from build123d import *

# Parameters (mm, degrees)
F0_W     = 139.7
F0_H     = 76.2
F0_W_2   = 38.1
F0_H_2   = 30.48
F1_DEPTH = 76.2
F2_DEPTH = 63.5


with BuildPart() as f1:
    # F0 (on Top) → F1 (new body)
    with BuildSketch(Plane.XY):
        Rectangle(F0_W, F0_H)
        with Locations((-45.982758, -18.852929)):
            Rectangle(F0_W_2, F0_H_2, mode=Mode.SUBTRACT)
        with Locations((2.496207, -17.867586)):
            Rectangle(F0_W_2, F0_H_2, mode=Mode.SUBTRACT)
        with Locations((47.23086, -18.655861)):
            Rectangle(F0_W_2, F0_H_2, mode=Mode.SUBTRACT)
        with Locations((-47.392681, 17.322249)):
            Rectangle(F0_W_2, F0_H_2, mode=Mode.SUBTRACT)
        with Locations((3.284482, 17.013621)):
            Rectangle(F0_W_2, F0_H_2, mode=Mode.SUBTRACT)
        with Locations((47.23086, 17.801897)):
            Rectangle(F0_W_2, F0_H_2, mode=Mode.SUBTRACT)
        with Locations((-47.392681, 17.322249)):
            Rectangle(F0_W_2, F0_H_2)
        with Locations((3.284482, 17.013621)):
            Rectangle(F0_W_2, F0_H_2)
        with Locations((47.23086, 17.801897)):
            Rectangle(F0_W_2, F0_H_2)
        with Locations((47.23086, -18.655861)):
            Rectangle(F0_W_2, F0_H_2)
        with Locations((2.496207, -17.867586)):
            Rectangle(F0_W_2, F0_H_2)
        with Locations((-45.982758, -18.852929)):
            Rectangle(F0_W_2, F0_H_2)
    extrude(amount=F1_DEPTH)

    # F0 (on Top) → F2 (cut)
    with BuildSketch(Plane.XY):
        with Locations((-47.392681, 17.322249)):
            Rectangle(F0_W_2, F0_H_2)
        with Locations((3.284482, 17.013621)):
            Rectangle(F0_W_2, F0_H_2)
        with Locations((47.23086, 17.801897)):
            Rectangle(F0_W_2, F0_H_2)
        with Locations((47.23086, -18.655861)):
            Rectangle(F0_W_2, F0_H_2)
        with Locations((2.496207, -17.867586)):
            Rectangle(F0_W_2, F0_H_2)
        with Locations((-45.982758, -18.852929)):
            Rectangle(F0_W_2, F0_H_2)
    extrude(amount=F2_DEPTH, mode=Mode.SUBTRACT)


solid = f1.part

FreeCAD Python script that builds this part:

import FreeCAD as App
import Part
import Sketcher
Q = App.Units.Quantity


def add_polygon(sketch, points):
    """Adds a closed chain of lines whose ends are joined by coincident constraints."""
    first, n = sketch.GeometryCount, len(points)
    for a, b in zip(points, points[1:] + points[:1]):
        sketch.addGeometry(Part.LineSegment(App.Vector(*a, 0), App.Vector(*b, 0)), False)
    for i in range(n):
        sketch.addConstraint(Sketcher.Constraint("Coincident", first + i, 2, first + (i + 1) % n, 1))

doc = App.newDocument("Part")
body = doc.addObject("PartDesign::Body", "Body")

# Sketch on XY plane
sketch1 = body.newObject("Sketcher::SketchObject", "Sketch")
sketch1.AttachmentSupport = (doc.getObject("XY_Plane"), [""])
sketch1.MapMode = "FlatFace"
add_polygon(sketch1, [(-69.85, 38.1), (-69.85, -38.1), (69.85, -38.1), (69.85, 38.1)])  # lines 0-3
sketch1.addConstraint(Sketcher.Constraint("Vertical", 0))
sketch1.addConstraint(Sketcher.Constraint("Horizontal", 1))
sketch1.addConstraint(Sketcher.Constraint("Vertical", 2))
sketch1.addConstraint(Sketcher.Constraint("Horizontal", 3))
sketch1.addConstraint(Sketcher.Constraint("Symmetric", 0, 2, 2, 2, -1, 1))
sketch1.addConstraint(Sketcher.Constraint("DistanceY", 0, 2, 0, 1, Q("3 in")))
sketch1.addConstraint(Sketcher.Constraint("DistanceX", 1, 1, 1, 2, Q("5.5 in")))
pad1 = body.newObject("PartDesign::Pad", "Pad")
pad1.Profile = sketch1
pad1.Length = Q("3 in")

# Sketch on XY plane
sketch2 = body.newObject("Sketcher::SketchObject", "Sketch001")
sketch2.AttachmentSupport = (doc.getObject("XY_Plane"), [""])
sketch2.MapMode = "FlatFace"
add_polygon(sketch2, [(-66.442681, 32.562249), (-66.442681, 2.082249), (-28.342681, 2.082249), (-28.342681, 32.562249)])  # lines 0-3
add_polygon(sketch2, [(-15.765518, 32.253621), (-15.765518, 1.773621), (22.334482, 1.773621), (22.334482, 32.253621)])  # lines 4-7
add_polygon(sketch2, [(28.18086, 33.041897), (28.18086, 2.561897), (66.28086, 2.561897), (66.28086, 33.041897)])  # lines 8-11
add_polygon(sketch2, [(28.18086, -3.415861), (28.18086, -33.895861), (66.28086, -33.895861), (66.28086, -3.415861)])  # lines 12-15
add_polygon(sketch2, [(-16.553793, -2.627586), (-16.553793, -33.107586), (21.546207, -33.107586), (21.546207, -2.627586)])  # lines 16-19
add_polygon(sketch2, [(-65.032758, -3.612929), (-65.032758, -34.092929), (-26.932758, -34.092929), (-26.932758, -3.612929)])  # lines 20-23
sketch2.addConstraint(Sketcher.Constraint("Vertical", 0))
sketch2.addConstraint(Sketcher.Constraint("Horizontal", 1))
sketch2.addConstraint(Sketcher.Constraint("Vertical", 2))
sketch2.addConstraint(Sketcher.Constraint("Horizontal", 3))
sketch2.addConstraint(Sketcher.Constraint("Vertical", 4))
sketch2.addConstraint(Sketcher.Constraint("Horizontal", 5))
sketch2.addConstraint(Sketcher.Constraint("Vertical", 6))
sketch2.addConstraint(Sketcher.Constraint("Horizontal", 7))
sketch2.addConstraint(Sketcher.Constraint("Vertical", 8))
sketch2.addConstraint(Sketcher.Constraint("Horizontal", 9))
sketch2.addConstraint(Sketcher.Constraint("Vertical", 10))
sketch2.addConstraint(Sketcher.Constraint("Horizontal", 11))
sketch2.addConstraint(Sketcher.Constraint("Vertical", 12))
sketch2.addConstraint(Sketcher.Constraint("Horizontal", 13))
sketch2.addConstraint(Sketcher.Constraint("Vertical", 14))
sketch2.addConstraint(Sketcher.Constraint("Horizontal", 15))
sketch2.addConstraint(Sketcher.Constraint("Vertical", 16))
sketch2.addConstraint(Sketcher.Constraint("Horizontal", 17))
sketch2.addConstraint(Sketcher.Constraint("Vertical", 18))
sketch2.addConstraint(Sketcher.Constraint("Horizontal", 19))
sketch2.addConstraint(Sketcher.Constraint("Vertical", 20))
sketch2.addConstraint(Sketcher.Constraint("Horizontal", 21))
sketch2.addConstraint(Sketcher.Constraint("Vertical", 22))
sketch2.addConstraint(Sketcher.Constraint("Horizontal", 23))
sketch2.addConstraint(Sketcher.Constraint("Vertical", 11, 2, 12, 2))
sketch2.addConstraint(Sketcher.Constraint("Vertical", 10, 2, 13, 2))
sketch2.addConstraint(Sketcher.Constraint("Equal", 3, 5))
sketch2.addConstraint(Sketcher.Constraint("Equal", 7, 9))
sketch2.addConstraint(Sketcher.Constraint("Equal", 15, 17))
sketch2.addConstraint(Sketcher.Constraint("Equal", 19, 21))
sketch2.addConstraint(Sketcher.Constraint("Equal", 2, 4))
sketch2.addConstraint(Sketcher.Constraint("Equal", 6, 8))
sketch2.addConstraint(Sketcher.Constraint("Equal", 10, 12))
sketch2.addConstraint(Sketcher.Constraint("Equal", 14, 16))
sketch2.addConstraint(Sketcher.Constraint("Equal", 18, 20))
sketch2.addConstraint(Sketcher.Constraint("DistanceX", 1, 1, 1, 2, Q("1.5 in")))
sketch2.addConstraint(Sketcher.Constraint("DistanceY", 0, 2, 0, 1, Q("1.2 in")))
sketch2.addConstraint(Sketcher.Constraint("DistanceX", 0, 2, -1, 1, Q("66.442681 mm")))
sketch2.addConstraint(Sketcher.Constraint("DistanceY", -1, 1, 0, 2, Q("2.082249 mm")))
sketch2.addConstraint(Sketcher.Constraint("DistanceY", -1, 1, 4, 2, Q("1.773621 mm")))
sketch2.addConstraint(Sketcher.Constraint("DistanceX", -1, 1, 8, 2, Q("28.18086 mm")))
sketch2.addConstraint(Sketcher.Constraint("DistanceY", 12, 2, -1, 1, Q("33.895861 mm")))
sketch2.addConstraint(Sketcher.Constraint("DistanceX", 20, 2, -1, 1, Q("65.032758 mm")))
sketch2.addConstraint(Sketcher.Constraint("DistanceY", 20, 2, -1, 1, Q("34.092929 mm")))
sketch2.addConstraint(Sketcher.Constraint("DistanceY", 1, 2, 8, 2, Q("0.479648 mm")))
sketch2.addConstraint(Sketcher.Constraint("DistanceX", 5, 2, 9, 2, Q("43.946378 mm")))
sketch2.addConstraint(Sketcher.Constraint("DistanceX", 16, 2, -1, 1, Q("16.553793 mm")))
sketch2.addConstraint(Sketcher.Constraint("DistanceY", 16, 2, -1, 1, Q("33.107586 mm")))
pocket1 = body.newObject("PartDesign::Pocket", "Pocket")
pocket1.Profile = sketch2
pocket1.Length = Q("2.5 in")
pocket1.Reversed = True

doc.recompute()
